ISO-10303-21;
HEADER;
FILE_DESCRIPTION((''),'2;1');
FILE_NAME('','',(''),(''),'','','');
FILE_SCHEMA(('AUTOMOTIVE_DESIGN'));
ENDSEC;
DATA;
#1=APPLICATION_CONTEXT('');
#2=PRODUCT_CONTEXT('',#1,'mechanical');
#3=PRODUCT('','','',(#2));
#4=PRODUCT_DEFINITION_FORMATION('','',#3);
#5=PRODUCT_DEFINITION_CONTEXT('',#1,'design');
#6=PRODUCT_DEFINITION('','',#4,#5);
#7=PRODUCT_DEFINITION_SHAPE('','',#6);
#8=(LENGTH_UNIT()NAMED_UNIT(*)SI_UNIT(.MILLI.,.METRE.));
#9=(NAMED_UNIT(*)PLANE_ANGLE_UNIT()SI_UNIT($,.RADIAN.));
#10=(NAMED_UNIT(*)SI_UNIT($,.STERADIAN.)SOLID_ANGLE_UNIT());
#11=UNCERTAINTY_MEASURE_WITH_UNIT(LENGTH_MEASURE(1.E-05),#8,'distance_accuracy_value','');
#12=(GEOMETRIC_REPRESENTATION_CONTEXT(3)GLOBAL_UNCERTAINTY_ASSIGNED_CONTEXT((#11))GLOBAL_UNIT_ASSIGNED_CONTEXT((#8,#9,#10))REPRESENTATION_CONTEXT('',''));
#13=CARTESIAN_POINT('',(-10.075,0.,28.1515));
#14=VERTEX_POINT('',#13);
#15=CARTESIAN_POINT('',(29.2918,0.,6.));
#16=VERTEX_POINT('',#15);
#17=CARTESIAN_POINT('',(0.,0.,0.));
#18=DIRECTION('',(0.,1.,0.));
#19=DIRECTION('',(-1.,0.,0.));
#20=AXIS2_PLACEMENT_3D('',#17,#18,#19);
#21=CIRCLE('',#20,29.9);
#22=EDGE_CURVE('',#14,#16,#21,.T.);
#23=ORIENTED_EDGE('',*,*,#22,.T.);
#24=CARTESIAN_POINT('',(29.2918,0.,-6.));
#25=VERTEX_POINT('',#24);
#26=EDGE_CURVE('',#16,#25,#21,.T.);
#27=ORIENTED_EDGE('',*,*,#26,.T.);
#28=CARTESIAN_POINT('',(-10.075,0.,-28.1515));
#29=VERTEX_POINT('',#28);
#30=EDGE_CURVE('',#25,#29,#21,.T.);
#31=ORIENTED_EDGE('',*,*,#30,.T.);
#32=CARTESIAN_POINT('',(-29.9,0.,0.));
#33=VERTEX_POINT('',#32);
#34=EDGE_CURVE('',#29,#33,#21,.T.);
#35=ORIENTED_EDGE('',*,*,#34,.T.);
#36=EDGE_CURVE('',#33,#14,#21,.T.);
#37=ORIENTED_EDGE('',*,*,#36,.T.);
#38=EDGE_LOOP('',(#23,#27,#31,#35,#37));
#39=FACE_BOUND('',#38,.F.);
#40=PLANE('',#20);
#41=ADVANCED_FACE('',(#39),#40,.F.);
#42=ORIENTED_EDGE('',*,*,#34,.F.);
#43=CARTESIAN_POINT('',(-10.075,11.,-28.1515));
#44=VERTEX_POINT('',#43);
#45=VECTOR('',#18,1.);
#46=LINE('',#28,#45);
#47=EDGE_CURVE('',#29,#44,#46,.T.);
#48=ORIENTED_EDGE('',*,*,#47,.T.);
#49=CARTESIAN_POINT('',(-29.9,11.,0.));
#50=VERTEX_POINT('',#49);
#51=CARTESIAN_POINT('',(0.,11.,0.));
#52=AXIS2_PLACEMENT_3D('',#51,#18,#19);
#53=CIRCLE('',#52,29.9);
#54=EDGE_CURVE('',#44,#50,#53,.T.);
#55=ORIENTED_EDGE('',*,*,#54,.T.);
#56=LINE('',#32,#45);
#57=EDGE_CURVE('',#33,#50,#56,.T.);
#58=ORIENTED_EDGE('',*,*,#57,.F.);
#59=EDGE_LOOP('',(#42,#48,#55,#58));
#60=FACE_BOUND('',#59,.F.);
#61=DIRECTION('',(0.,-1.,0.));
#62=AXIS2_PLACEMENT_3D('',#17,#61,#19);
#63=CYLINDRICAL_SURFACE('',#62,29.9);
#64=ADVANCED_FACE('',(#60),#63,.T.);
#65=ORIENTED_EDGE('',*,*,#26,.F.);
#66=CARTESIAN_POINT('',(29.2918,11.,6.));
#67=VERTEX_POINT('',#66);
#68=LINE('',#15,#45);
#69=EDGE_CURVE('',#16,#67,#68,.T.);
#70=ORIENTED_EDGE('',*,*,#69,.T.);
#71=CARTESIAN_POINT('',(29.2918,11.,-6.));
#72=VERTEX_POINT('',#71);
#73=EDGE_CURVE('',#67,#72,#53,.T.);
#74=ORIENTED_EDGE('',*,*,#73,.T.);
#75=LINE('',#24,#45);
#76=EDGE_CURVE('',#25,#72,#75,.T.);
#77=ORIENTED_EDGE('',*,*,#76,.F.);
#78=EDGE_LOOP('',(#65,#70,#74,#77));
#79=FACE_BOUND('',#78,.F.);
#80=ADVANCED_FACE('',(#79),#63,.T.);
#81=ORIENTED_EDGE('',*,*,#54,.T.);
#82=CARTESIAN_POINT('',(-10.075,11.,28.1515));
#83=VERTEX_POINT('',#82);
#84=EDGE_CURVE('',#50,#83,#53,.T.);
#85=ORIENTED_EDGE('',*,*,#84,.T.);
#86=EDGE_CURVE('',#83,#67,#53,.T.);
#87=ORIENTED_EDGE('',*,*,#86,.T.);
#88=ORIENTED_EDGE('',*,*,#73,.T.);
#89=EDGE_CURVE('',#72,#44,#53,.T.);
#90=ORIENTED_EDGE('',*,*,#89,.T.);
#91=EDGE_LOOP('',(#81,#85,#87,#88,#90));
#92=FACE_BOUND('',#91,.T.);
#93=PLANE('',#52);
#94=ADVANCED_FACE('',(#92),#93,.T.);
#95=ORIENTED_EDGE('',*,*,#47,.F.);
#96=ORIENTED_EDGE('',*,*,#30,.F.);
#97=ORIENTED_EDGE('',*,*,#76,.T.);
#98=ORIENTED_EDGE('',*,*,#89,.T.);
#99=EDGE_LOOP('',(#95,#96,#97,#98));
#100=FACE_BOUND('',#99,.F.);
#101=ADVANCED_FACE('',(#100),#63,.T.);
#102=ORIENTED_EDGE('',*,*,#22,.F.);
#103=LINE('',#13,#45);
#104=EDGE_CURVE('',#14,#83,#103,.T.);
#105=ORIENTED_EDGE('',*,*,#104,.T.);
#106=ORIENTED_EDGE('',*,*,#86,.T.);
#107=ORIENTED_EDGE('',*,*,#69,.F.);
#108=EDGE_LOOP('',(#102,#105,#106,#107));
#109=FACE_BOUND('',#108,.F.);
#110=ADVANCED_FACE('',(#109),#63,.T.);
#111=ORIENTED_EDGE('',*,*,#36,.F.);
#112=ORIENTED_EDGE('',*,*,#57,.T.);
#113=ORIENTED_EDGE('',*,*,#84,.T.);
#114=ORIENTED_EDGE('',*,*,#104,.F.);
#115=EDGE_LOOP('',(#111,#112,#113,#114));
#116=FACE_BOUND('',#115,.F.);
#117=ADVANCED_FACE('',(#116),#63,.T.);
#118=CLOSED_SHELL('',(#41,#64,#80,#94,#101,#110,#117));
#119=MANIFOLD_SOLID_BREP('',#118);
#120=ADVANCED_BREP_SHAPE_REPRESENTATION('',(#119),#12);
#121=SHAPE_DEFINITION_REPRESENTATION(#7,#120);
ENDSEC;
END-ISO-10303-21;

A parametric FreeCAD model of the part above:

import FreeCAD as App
import Part
import Sketcher

doc = App.newDocument("Part")
body = doc.addObject("PartDesign::Body", "Body")

# Sketch on XZ plane
sketch1 = body.newObject("Sketcher::SketchObject", "Sketch")
sketch1.AttachmentSupport = (doc.getObject("XZ_Plane"), [""])
sketch1.MapMode = "FlatFace"
sketch1.addGeometry(Part.Circle(App.Vector(0, 0, 0), App.Vector(0, 0, 1), 30), False)
sketch1.addConstraint(Sketcher.Constraint("Coincident", 0, 3, -1, 1))
sketch1.addConstraint(Sketcher.Constraint("Diameter", 0, 59.8))
pad1 = body.newObject("PartDesign::Pad", "Pad")
pad1.Profile = sketch1
pad1.Length = 11
pad1.Reversed = True

doc.recompute()
